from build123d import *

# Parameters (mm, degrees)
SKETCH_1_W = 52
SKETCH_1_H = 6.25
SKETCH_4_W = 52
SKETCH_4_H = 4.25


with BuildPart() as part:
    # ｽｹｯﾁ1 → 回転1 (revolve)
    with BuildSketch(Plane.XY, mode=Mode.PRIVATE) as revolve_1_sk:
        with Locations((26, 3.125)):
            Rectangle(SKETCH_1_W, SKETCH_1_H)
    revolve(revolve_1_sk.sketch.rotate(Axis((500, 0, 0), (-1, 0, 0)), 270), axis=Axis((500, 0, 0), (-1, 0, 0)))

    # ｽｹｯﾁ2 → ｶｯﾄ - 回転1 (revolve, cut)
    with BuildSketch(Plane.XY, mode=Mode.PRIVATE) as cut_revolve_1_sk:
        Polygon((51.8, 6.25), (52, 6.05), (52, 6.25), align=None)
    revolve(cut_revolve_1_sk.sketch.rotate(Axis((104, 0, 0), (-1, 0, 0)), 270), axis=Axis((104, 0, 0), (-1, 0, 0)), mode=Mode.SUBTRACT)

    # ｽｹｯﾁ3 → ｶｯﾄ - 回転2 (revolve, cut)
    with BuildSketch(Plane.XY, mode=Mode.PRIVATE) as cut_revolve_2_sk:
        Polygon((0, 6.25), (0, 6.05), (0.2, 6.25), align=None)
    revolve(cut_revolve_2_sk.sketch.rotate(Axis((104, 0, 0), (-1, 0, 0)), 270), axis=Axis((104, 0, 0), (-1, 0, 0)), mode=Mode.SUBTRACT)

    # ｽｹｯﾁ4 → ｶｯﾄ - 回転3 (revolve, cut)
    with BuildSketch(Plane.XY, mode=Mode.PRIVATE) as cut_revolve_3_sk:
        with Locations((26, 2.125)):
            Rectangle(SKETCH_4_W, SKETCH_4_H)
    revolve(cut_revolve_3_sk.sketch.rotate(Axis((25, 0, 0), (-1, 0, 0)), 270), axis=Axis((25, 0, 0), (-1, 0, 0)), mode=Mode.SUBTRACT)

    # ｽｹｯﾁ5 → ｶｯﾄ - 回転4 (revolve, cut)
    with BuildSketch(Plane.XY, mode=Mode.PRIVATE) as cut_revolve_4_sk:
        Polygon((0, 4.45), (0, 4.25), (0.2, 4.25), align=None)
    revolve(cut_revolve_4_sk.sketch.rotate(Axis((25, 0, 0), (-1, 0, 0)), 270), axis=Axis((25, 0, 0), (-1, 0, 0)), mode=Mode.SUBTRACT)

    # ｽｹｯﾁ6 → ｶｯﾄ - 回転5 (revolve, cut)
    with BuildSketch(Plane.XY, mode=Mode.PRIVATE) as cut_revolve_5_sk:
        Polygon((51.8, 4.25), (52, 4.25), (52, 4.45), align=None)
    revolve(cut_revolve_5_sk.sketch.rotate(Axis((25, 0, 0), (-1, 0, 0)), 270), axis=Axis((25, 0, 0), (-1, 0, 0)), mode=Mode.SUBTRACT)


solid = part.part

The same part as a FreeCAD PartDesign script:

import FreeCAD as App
import Part
import Sketcher

V = App.Vector
Q = App.Units.Quantity

doc = App.newDocument("Part")
params = doc.addObject("Spreadsheet::Sheet", "Params")
for row, (alias, value) in enumerate([
    ("sketch1_width", "52 mm"),
    ("sketch1_height", "6.25 mm"),
    ("revolution_angle", "360 deg"),
    ("sketch2_width", "0.2 mm"),
    ("groove_angle", "360 deg"),
    ("sketch3_width", "0.2 mm"),
    ("groove2_angle", "360 deg"),
    ("sketch4_width", "52 mm"),
    ("sketch4_height", "4.25 mm"),
    ("groove3_angle", "360 deg"),
    ("sketch5_width", "0.2 mm"),
    ("groove4_angle", "360 deg"),
    ("sketch6_width", "0.2 mm"),
    ("groove5_angle", "360 deg"),
], start=1):
    params.set(f"A{row}", alias)
    params.set(f"B{row}", "=" + value)
    params.setAlias(f"B{row}", alias)

body = doc.addObject("PartDesign::Body", "Body")

# Sketch on XY plane
sketch1 = body.newObject("Sketcher::SketchObject", "Sketch")
sketch1.AttachmentSupport = (doc.getObject("XY_Plane"), [""])
sketch1.MapMode = "FlatFace"
sketch1.addGeometry(Part.LineSegment(V(0, 6, 0), V(0, 0, 0)), False)
sketch1.addGeometry(Part.LineSegment(V(0, 0, 0), V(52, 0, 0)), False)
sketch1.addGeometry(Part.LineSegment(V(52, 0, 0), V(52, 6, 0)), False)
sketch1.addGeometry(Part.LineSegment(V(52, 6, 0), V(0, 6, 0)), False)
sketch1.addConstraint(Sketcher.Constraint("Coincident", 0, 2, 1, 1))
sketch1.addConstraint(Sketcher.Constraint("Coincident", 1, 2, 2, 1))
sketch1.addConstraint(Sketcher.Constraint("Coincident", 2, 2, 3, 1))
sketch1.addConstraint(Sketcher.Constraint("Coincident", 3, 2, 0, 1))
sketch1.addConstraint(Sketcher.Constraint("Vertical", 0))
sketch1.addConstraint(Sketcher.Constraint("Horizontal", 1))
sketch1.addConstraint(Sketcher.Constraint("Vertical", 2))
sketch1.addConstraint(Sketcher.Constraint("Horizontal", 3))
sketch1.addConstraint(Sketcher.Constraint("Coincident", 0, 2, -1, 1))
sketch1.addConstraint(Sketcher.Constraint("DistanceX", 1, 1, 1, 2, Q("52 mm")))
sketch1.addConstraint(Sketcher.Constraint("DistanceY", 0, 2, 0, 1, Q("6.25 mm")))
sketch1.setExpression("Constraints[9]", "Params.sketch1_width")
sketch1.setExpression("Constraints[10]", "Params.sketch1_height")
revolution = body.newObject("PartDesign::Revolution", "Revolution")
revolution.Profile = sketch1
revolution.ReferenceAxis = (sketch1, ["H_Axis"])
revolution.setExpression("Angle", "Params.revolution_angle")

# Sketch on XY plane
sketch2 = body.newObject("Sketcher::SketchObject", "Sketch001")
sketch2.AttachmentSupport = (doc.getObject("XY_Plane"), [""])
sketch2.MapMode = "FlatFace"
sketch2.addGeometry(Part.LineSegment(V(51.8, 6.25, 0), V(52, 6.05, 0)), False)
sketch2.addGeometry(Part.LineSegment(V(52, 6.05, 0), V(52, 6.25, 0)), False)
sketch2.addGeometry(Part.LineSegment(V(52, 6.25, 0), V(51.8, 6.25, 0)), False)
sketch2.addConstraint(Sketcher.Constraint("Coincident", 0, 2, 1, 1))
sketch2.addConstraint(Sketcher.Constraint("Coincident", 1, 2, 2, 1))
sketch2.addConstraint(Sketcher.Constraint("Coincident", 2, 2, 0, 1))
sketch2.addConstraint(Sketcher.Constraint("Vertical", 1))
sketch2.addConstraint(Sketcher.Constraint("Horizontal", 2))
sketch2.addConstraint(Sketcher.Constraint("Equal", 2, 1))
sketch2.addConstraint(Sketcher.Constraint("DistanceX", 2, 2, 2, 1, Q("0.2 mm")))
sketch2.addConstraint(Sketcher.Constraint("DistanceX", -1, 1, 0, 2, Q("52 mm")))
sketch2.addConstraint(Sketcher.Constraint("DistanceY", -1, 1, 0, 2, Q("6.05 mm")))
sketch2.setExpression("Constraints[6]", "Params.sketch2_width")
groove = body.newObject("PartDesign::Groove", "Groove")
groove.Profile = sketch2
groove.ReferenceAxis = (sketch2, ["H_Axis"])
groove.setExpression("Angle", "Params.groove_angle")

# Sketch on XY plane
sketch3 = body.newObject("Sketcher::SketchObject", "Sketch002")
sketch3.AttachmentSupport = (doc.getObject("XY_Plane"), [""])
sketch3.MapMode = "FlatFace"
sketch3.addGeometry(Part.LineSegment(V(0, 6.25, 0), V(0, 6.05, 0)), False)
sketch3.addGeometry(Part.LineSegment(V(0, 6.05, 0), V(0.2, 6.25, 0)), False)
sketch3.addGeometry(Part.LineSegment(V(0.2, 6.25, 0), V(0, 6.25, 0)), False)
sketch3.addConstraint(Sketcher.Constraint("Coincident", 0, 2, 1, 1))
sketch3.addConstraint(Sketcher.Constraint("Coincident", 1, 2, 2, 1))
sketch3.addConstraint(Sketcher.Constraint("Coincident", 2, 2, 0, 1))
sketch3.addConstraint(Sketcher.Constraint("Vertical", 0))
sketch3.addConstraint(Sketcher.Constraint("Horizontal", 2))
sketch3.addConstraint(Sketcher.Constraint("PointOnObject", 0, 2, -2))
sketch3.addConstraint(Sketcher.Constraint("Equal", 2, 0))
sketch3.addConstraint(Sketcher.Constraint("DistanceX", 2, 2, 2, 1, Q("0.2 mm")))
sketch3.addConstraint(Sketcher.Constraint("DistanceY", -1, 1, 0, 2, Q("6.05 mm")))
sketch3.setExpression("Constraints[7]", "Params.sketch3_width")
groove2 = body.newObject("PartDesign::Groove", "Groove001")
groove2.Profile = sketch3
groove2.ReferenceAxis = (sketch3, ["H_Axis"])
groove2.setExpression("Angle", "Params.groove2_angle")

# Sketch on XY plane
sketch4 = body.newObject("Sketcher::SketchObject", "Sketch003")
sketch4.AttachmentSupport = (doc.getObject("XY_Plane"), [""])
sketch4.MapMode = "FlatFace"
sketch4.addGeometry(Part.LineSegment(V(0, 4.2, 0), V(0, 0, 0)), False)
sketch4.addGeometry(Part.LineSegment(V(0, 0, 0), V(52, 0, 0)), False)
sketch4.addGeometry(Part.LineSegment(V(52, 0, 0), V(52, 4.2, 0)), False)
sketch4.addGeometry(Part.LineSegment(V(52, 4.2, 0), V(0, 4.2, 0)), False)
sketch4.addConstraint(Sketcher.Constraint("Coincident", 0, 2, 1, 1))
sketch4.addConstraint(Sketcher.Constraint("Coincident", 1, 2, 2, 1))
sketch4.addConstraint(Sketcher.Constraint("Coincident", 2, 2, 3, 1))
sketch4.addConstraint(Sketcher.Constraint("Coincident", 3, 2, 0, 1))
sketch4.addConstraint(Sketcher.Constraint("Vertical", 0))
sketch4.addConstraint(Sketcher.Constraint("Horizontal", 1))
sketch4.addConstraint(Sketcher.Constraint("Vertical", 2))
sketch4.addConstraint(Sketcher.Constraint("Horizontal", 3))
sketch4.addConstraint(Sketcher.Constraint("Coincident", 0, 2, -1, 1))
sketch4.addConstraint(Sketcher.Constraint("DistanceX", 1, 1, 1, 2, Q("52 mm")))
sketch4.addConstraint(Sketcher.Constraint("DistanceY", 0, 2, 0, 1, Q("4.25 mm")))
sketch4.setExpression("Constraints[9]", "Params.sketch4_width")
sketch4.setExpression("Constraints[10]", "Params.sketch4_height")
groove3 = body.newObject("PartDesign::Groove", "Groove002")
groove3.Profile = sketch4
groove3.ReferenceAxis = (sketch4, ["H_Axis"])
groove3.setExpression("Angle", "Params.groove3_angle")

# Sketch on XY plane
sketch5 = body.newObject("Sketcher::SketchObject", "Sketch004")
sketch5.AttachmentSupport = (doc.getObject("XY_Plane"), [""])
sketch5.MapMode = "FlatFace"
sketch5.addGeometry(Part.LineSegment(V(0, 4.45, 0), V(0, 4.25, 0)), False)
sketch5.addGeometry(Part.LineSegment(V(0, 4.25, 0), V(0.2, 4.25, 0)), False)
sketch5.addGeometry(Part.LineSegment(V(0.2, 4.25, 0), V(0, 4.45, 0)), False)
sketch5.addConstraint(Sketcher.Constraint("Coincident", 0, 2, 1, 1))
sketch5.addConstraint(Sketcher.Constraint("Coincident", 1, 2, 2, 1))
sketch5.addConstraint(Sketcher.Constraint("Coincident", 2, 2, 0, 1))
sketch5.addConstraint(Sketcher.Constraint("Vertical", 0))
sketch5.addConstraint(Sketcher.Constraint("Horizontal", 1))
sketch5.addConstraint(Sketcher.Constraint("PointOnObject", 0, 2, -2))
sketch5.addConstraint(Sketcher.Constraint("Equal", 1, 0))
sketch5.addConstraint(Sketcher.Constraint("DistanceX", 1, 1, 1, 2, Q("0.2 mm")))
sketch5.addConstraint(Sketcher.Constraint("DistanceY", -1, 1, 0, 2, Q("4.25 mm")))
sketch5.setExpression("Constraints[7]", "Params.sketch5_width")
groove4 = body.newObject("PartDesign::Groove", "Groove003")
groove4.Profile = sketch5
groove4.ReferenceAxis = (sketch5, ["H_Axis"])
groove4.setExpression("Angle", "Params.groove4_angle")

# Sketch on XY plane
sketch6 = body.newObject("Sketcher::SketchObject", "Sketch005")
sketch6.AttachmentSupport = (doc.getObject("XY_Plane"), [""])
sketch6.MapMode = "FlatFace"
sketch6.addGeometry(Part.LineSegment(V(51.8, 4.25, 0), V(52, 4.25, 0)), False)
sketch6.addGeometry(Part.LineSegment(V(52, 4.25, 0), V(52, 4.45, 0)), False)
sketch6.addGeometry(Part.LineSegment(V(52, 4.45, 0), V(51.8, 4.25, 0)), False)
sketch6.addConstraint(Sketcher.Constraint("Coincident", 0, 2, 1, 1))
sketch6.addConstraint(Sketcher.Constraint("Coincident", 1, 2, 2, 1))
sketch6.addConstraint(Sketcher.Constraint("Coincident", 2, 2, 0, 1))
sketch6.addConstraint(Sketcher.Constraint("Horizontal", 0))
sketch6.addConstraint(Sketcher.Constraint("Vertical", 1))
sketch6.addConstraint(Sketcher.Constraint("Equal", 0, 1))
sketch6.addConstraint(Sketcher.Constraint("DistanceX", 0, 1, 0, 2, Q("0.2 mm")))
sketch6.addConstraint(Sketcher.Constraint("DistanceX", -1, 1, 0, 2, Q("52 mm")))
sketch6.addConstraint(Sketcher.Constraint("DistanceY", -1, 1, 0, 2, Q("4.25 mm")))
sketch6.setExpression("Constraints[6]", "Params.sketch6_width")
groove5 = body.newObject("PartDesign::Groove", "Groove004")
groove5.Profile = sketch6
groove5.ReferenceAxis = (sketch6, ["H_Axis"])
groove5.setExpression("Angle", "Params.groove5_angle")

doc.recompute()
